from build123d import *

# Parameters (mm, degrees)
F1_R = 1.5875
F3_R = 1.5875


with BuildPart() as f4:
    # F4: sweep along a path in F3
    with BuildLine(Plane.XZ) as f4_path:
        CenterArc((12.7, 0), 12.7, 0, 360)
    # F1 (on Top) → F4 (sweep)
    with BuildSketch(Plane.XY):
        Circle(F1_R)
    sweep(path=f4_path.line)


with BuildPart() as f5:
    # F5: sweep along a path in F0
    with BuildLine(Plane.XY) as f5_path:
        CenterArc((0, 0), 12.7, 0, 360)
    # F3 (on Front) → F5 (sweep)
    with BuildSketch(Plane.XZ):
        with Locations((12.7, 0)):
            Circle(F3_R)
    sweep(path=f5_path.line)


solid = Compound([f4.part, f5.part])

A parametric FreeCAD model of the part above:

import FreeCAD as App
import Part
import Sketcher
from FreeCAD import Vector
Q = App.Units.Quantity

doc = App.newDocument("Part")
body = doc.addObject("PartDesign::Body", "Body")

sketch1 = body.newObject("Sketcher::SketchObject", "Sketch")
sketch1.AttachmentSupport = (doc.getObject("XY_Plane"), [""])
sketch1.MapMode = "FlatFace"
sketch1.addGeometry(Part.Circle(Vector(0, 0, 0), Vector(0, 0, 1), 1.6), False)
sketch1.addConstraint(Sketcher.Constraint("Coincident", 0, 3, -1, 1))
sketch1.addConstraint(Sketcher.Constraint("Diameter", 0, Q("0.125 in")))

sketch2 = body.newObject("Sketcher::SketchObject", "Sketch001")
sketch2.AttachmentSupport = (doc.getObject("XZ_Plane"), [""])
sketch2.MapMode = "FlatFace"
sketch2.addGeometry(Part.Circle(Vector(13, 0, 0), Vector(0, 0, 1), 13), False)
sketch2.addConstraint(Sketcher.Constraint("PointOnObject", 0, 3, -1))
sketch2.addConstraint(Sketcher.Constraint("Diameter", 0, Q("1 in")))
sketch2.addConstraint(Sketcher.Constraint("DistanceX", -1, 1, 0, 3, Q("0.5 in")))
doc.recompute()

additivepipe = body.newObject("PartDesign::AdditivePipe", "AdditivePipe")
additivepipe.Profile = sketch1
additivepipe.Spine = (sketch2, ["Edge1"])
body2 = doc.addObject("PartDesign::Body", "Body001")

sketch3 = body2.newObject("Sketcher::SketchObject", "Sketch002")
sketch3.AttachmentSupport = (doc.getObject("XZ_Plane001"), [""])
sketch3.MapMode = "FlatFace"
sketch3.addGeometry(Part.Circle(Vector(12.7, 0, 0), Vector(0, 0, 1), 1.6), False)
sketch3.addConstraint(Sketcher.Constraint("PointOnObject", 0, 3, -1))
sketch3.addConstraint(Sketcher.Constraint("Diameter", 0, Q("0.125 in")))
sketch3.addConstraint(Sketcher.Constraint("DistanceX", -1, 1, 0, 3, Q("0.5 in")))

sketch4 = body2.newObject("Sketcher::SketchObject", "Sketch003")
sketch4.AttachmentSupport = (doc.getObject("XY_Plane001"), [""])
sketch4.MapMode = "FlatFace"
sketch4.addGeometry(Part.Circle(Vector(0, 0, 0), Vector(0, 0, 1), 13), False)
sketch4.addConstraint(Sketcher.Constraint("Coincident", 0, 3, -1, 1))
sketch4.addConstraint(Sketcher.Constraint("Diameter", 0, Q("1 in")))
doc.recompute()

additivepipe2 = body2.newObject("PartDesign::AdditivePipe", "AdditivePipe001")
additivepipe2.Profile = sketch3
additivepipe2.Spine = (sketch4, ["Edge1"])

doc.recompute()
